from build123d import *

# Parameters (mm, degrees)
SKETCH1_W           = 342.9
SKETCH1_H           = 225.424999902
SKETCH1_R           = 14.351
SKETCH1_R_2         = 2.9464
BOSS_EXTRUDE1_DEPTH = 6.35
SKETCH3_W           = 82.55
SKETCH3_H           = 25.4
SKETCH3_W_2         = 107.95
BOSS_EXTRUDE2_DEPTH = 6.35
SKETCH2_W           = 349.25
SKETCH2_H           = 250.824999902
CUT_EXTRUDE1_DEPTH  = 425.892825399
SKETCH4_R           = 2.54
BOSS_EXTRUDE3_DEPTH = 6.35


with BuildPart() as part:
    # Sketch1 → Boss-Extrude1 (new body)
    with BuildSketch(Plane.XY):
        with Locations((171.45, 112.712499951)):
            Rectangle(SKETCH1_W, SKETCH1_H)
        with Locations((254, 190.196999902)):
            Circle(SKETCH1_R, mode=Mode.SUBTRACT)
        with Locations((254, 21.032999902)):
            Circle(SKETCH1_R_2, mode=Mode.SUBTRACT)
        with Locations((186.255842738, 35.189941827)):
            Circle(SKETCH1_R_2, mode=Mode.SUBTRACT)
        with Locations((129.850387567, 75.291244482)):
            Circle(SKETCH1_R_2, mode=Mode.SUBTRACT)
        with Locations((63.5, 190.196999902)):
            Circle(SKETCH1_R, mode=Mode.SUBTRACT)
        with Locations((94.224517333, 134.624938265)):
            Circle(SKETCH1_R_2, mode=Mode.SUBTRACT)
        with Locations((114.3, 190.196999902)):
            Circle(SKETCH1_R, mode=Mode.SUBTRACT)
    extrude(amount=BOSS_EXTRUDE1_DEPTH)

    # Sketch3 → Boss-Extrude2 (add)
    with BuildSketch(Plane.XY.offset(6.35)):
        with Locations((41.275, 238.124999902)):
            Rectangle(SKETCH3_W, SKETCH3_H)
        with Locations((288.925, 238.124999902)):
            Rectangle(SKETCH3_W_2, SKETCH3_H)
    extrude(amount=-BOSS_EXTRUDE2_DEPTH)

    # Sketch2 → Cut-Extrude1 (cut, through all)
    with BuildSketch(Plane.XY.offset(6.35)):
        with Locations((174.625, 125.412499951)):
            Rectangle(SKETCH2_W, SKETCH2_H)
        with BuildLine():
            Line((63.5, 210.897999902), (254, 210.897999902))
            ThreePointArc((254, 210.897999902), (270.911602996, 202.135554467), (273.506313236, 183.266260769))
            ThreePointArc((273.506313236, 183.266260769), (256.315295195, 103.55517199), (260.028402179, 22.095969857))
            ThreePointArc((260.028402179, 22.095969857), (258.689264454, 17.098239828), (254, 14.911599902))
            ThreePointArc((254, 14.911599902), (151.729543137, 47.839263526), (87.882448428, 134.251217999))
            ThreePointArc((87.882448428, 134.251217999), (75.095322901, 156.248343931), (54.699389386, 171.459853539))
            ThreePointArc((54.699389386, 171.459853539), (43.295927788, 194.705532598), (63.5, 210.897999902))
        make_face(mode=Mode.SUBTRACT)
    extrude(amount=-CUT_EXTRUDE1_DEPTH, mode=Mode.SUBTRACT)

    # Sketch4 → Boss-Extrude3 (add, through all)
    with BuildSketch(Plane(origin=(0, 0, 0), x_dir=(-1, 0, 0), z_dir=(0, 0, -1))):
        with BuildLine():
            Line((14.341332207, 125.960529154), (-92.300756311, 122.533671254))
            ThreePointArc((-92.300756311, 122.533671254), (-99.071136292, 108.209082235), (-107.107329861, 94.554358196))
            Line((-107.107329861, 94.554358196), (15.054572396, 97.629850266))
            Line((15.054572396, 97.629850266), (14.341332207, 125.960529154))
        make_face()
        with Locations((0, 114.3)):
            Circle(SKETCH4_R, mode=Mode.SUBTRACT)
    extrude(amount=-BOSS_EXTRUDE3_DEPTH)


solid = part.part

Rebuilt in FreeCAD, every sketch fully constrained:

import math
import FreeCAD as App
import Part
import Sketcher
Q = App.Units.Quantity

doc = App.newDocument("Part")
body = doc.addObject("PartDesign::Body", "Body")

# Sketch on XY plane
sketch1 = body.newObject("Sketcher::SketchObject", "Sketch")
sketch1.AttachmentSupport = (doc.getObject("XY_Plane"), [""])
sketch1.MapMode = "FlatFace"
sketch1.addGeometry(Part.LineSegment(App.Vector(0, 225.4, 0), App.Vector(0, 0, 0)), False)
sketch1.addGeometry(Part.LineSegment(App.Vector(0, 0, 0), App.Vector(342.9, 0, 0)), False)
sketch1.addGeometry(Part.LineSegment(App.Vector(342.9, 0, 0), App.Vector(342.9, 225.4, 0)), False)
sketch1.addGeometry(Part.LineSegment(App.Vector(342.9, 225.4, 0), App.Vector(0, 225.4, 0)), False)
sketch1.addGeometry(Part.Circle(App.Vector(129.9, 75.3, 0), App.Vector(0, 0, 1), 2.9), False)
sketch1.addGeometry(Part.Circle(App.Vector(186.3, 35.2, 0), App.Vector(0, 0, 1), 2.9), False)
sketch1.addGeometry(Part.Circle(App.Vector(254, 21, 0), App.Vector(0, 0, 1), 2.9), False)
sketch1.addGeometry(Part.Circle(App.Vector(94.2, 134.6, 0), App.Vector(0, 0, 1), 2.9), False)
sketch1.addGeometry(Part.Circle(App.Vector(63.5, 190.2, 0), App.Vector(0, 0, 1), 14.4), False)
sketch1.addGeometry(Part.Circle(App.Vector(114.3, 190.2, 0), App.Vector(0, 0, 1), 14.4), False)
sketch1.addGeometry(Part.Circle(App.Vector(254, 190.2, 0), App.Vector(0, 0, 1), 14.4), False)
sketch1.addConstraint(Sketcher.Constraint("Coincident", 0, 2, 1, 1))
sketch1.addConstraint(Sketcher.Constraint("Coincident", 1, 2, 2, 1))
sketch1.addConstraint(Sketcher.Constraint("Coincident", 2, 2, 3, 1))
sketch1.addConstraint(Sketcher.Constraint("Coincident", 3, 2, 0, 1))
sketch1.addConstraint(Sketcher.Constraint("Vertical", 0))
sketch1.addConstraint(Sketcher.Constraint("Horizontal", 1))
sketch1.addConstraint(Sketcher.Constraint("Vertical", 2))
sketch1.addConstraint(Sketcher.Constraint("Horizontal", 3))
sketch1.addConstraint(Sketcher.Constraint("Coincident", 0, 2, -1, 1))
sketch1.addConstraint(Sketcher.Constraint("Equal", 4, 5))
sketch1.addConstraint(Sketcher.Constraint("Equal", 5, 6))
sketch1.addConstraint(Sketcher.Constraint("Equal", 6, 7))
sketch1.addConstraint(Sketcher.Constraint("Equal", 8, 9))
sketch1.addConstraint(Sketcher.Constraint("Equal", 9, 10))
sketch1.addConstraint(Sketcher.Constraint("Horizontal", 8, 3, 9, 3))
sketch1.addConstraint(Sketcher.Constraint("Horizontal", 9, 3, 10, 3))
sketch1.addConstraint(Sketcher.Constraint("Vertical", 6, 3, 10, 3))
sketch1.addConstraint(Sketcher.Constraint("Diameter", 8, Q("1.13 in")))
sketch1.addConstraint(Sketcher.Constraint("Diameter", 4, Q("0.232 in")))
sketch1.addConstraint(Sketcher.Constraint("DistanceX", 1, 1, 1, 2, Q("13.5 in")))
sketch1.addConstraint(Sketcher.Constraint("DistanceX", -1, 1, 6, 3, Q("10 in")))
sketch1.addConstraint(Sketcher.Constraint("DistanceX", 8, 3, 9, 3, Q("2 in")))
sketch1.addConstraint(Sketcher.Constraint("DistanceX", 9, 3, 2, 2, Q("9 in")))
sketch1.addConstraint(Sketcher.Constraint("DistanceY", 0, 2, 0, 1, Q("8.875 in")))
sketch1.addConstraint(Sketcher.Constraint("DistanceY", 6, 3, 8, 3, Q("6.66 in")))
sketch1.addConstraint(Sketcher.Constraint("DistanceY", -1, 1, 6, 3, Q("21.033 mm")))
sketch1.addConstraint(Sketcher.Constraint("DistanceY", -1, 1, 5, 3, Q("35.189942 mm")))
sketch1.addConstraint(Sketcher.Constraint("DistanceY", -1, 1, 7, 3, Q("134.624938 mm")))
sketch1.addConstraint(Sketcher.Constraint("DistanceX", 7, 3, 4, 3, Q("35.62587 mm")))
sketch1.addConstraint(Sketcher.Constraint("DistanceX", -1, 1, 4, 3, Q("129.850388 mm")))
sketch1.addConstraint(Sketcher.Constraint("DistanceY", -1, 1, 4, 3, Q("75.291244 mm")))
sketch1.addConstraint(Sketcher.Constraint("DistanceX", -1, 1, 5, 3, Q("186.255843 mm")))
pad1 = body.newObject("PartDesign::Pad", "Pad")
pad1.Profile = sketch1
pad1.Length = Q("0.25 in")

# Sketch on XY plane
sketch2 = body.newObject("Sketcher::SketchObject", "Sketch001")
sketch2.AttachmentSupport = (doc.getObject("XY_Plane"), [""])
sketch2.MapMode = "FlatFace"
sketch2.AttachmentOffset = App.Placement(App.Vector(0, 0, 0.25 * 25.4), App.Rotation())
sketch2.addGeometry(Part.LineSegment(App.Vector(0, 251, 0), App.Vector(0, 225, 0)), False)
sketch2.addGeometry(Part.LineSegment(App.Vector(0, 225, 0), App.Vector(83, 225, 0)), False)
sketch2.addGeometry(Part.LineSegment(App.Vector(83, 225, 0), App.Vector(83, 251, 0)), False)
sketch2.addGeometry(Part.LineSegment(App.Vector(83, 251, 0), App.Vector(0, 251, 0)), False)
sketch2.addGeometry(Part.LineSegment(App.Vector(235, 251, 0), App.Vector(235, 225, 0)), False)
sketch2.addGeometry(Part.LineSegment(App.Vector(235, 225, 0), App.Vector(343, 225, 0)), False)
sketch2.addGeometry(Part.LineSegment(App.Vector(343, 225, 0), App.Vector(343, 251, 0)), False)
sketch2.addGeometry(Part.LineSegment(App.Vector(343, 251, 0), App.Vector(235, 251, 0)), False)
sketch2.addConstraint(Sketcher.Constraint("Coincident", 0, 2, 1, 1))
sketch2.addConstraint(Sketcher.Constraint("Coincident", 1, 2, 2, 1))
sketch2.addConstraint(Sketcher.Constraint("Coincident", 2, 2, 3, 1))
sketch2.addConstraint(Sketcher.Constraint("Coincident", 3, 2, 0, 1))
sketch2.addConstraint(Sketcher.Constraint("Coincident", 4, 2, 5, 1))
sketch2.addConstraint(Sketcher.Constraint("Coincident", 5, 2, 6, 1))
sketch2.addConstraint(Sketcher.Constraint("Coincident", 6, 2, 7, 1))
sketch2.addConstraint(Sketcher.Constraint("Coincident", 7, 2, 4, 1))
sketch2.addConstraint(Sketcher.Constraint("Vertical", 0))
sketch2.addConstraint(Sketcher.Constraint("Horizontal", 1))
sketch2.addConstraint(Sketcher.Constraint("Vertical", 2))
sketch2.addConstraint(Sketcher.Constraint("Horizontal", 3))
sketch2.addConstraint(Sketcher.Constraint("Vertical", 4))
sketch2.addConstraint(Sketcher.Constraint("Horizontal", 5))
sketch2.addConstraint(Sketcher.Constraint("Vertical", 6))
sketch2.addConstraint(Sketcher.Constraint("Horizontal", 7))
sketch2.addConstraint(Sketcher.Constraint("PointOnObject", 0, 2, -2))
sketch2.addConstraint(Sketcher.Constraint("Horizontal", 1, 2, 4, 2))
sketch2.addConstraint(Sketcher.Constraint("Horizontal", 3, 2, 6, 2))
sketch2.addConstraint(Sketcher.Constraint("DistanceY", 0, 2, 0, 1, Q("1 in")))
sketch2.addConstraint(Sketcher.Constraint("DistanceX", 1, 2, 4, 2, Q("6 in")))
sketch2.addConstraint(Sketcher.Constraint("DistanceX", 1, 1, 1, 2, Q("3.25 in")))
sketch2.addConstraint(Sketcher.Constraint("DistanceX", 5, 1, 5, 2, Q("4.25 in")))
sketch2.addConstraint(Sketcher.Constraint("DistanceY", -1, 1, 0, 2, Q("8.875 in")))
pad2 = body.newObject("PartDesign::Pad", "Pad001")
pad2.Profile = sketch2
pad2.Length = Q("0.25 in")
pad2.Reversed = True

# Sketch on XY plane
sketch3 = body.newObject("Sketcher::SketchObject", "Sketch002")
sketch3.AttachmentSupport = (doc.getObject("XY_Plane"), [""])
sketch3.MapMode = "FlatFace"
sketch3.AttachmentOffset = App.Placement(App.Vector(0, 0, 0.25 * 25.4), App.Rotation())
sketch3.addGeometry(Part.LineSegment(App.Vector(0, 251, 0), App.Vector(0, 0, 0)), False)
sketch3.addGeometry(Part.LineSegment(App.Vector(0, 0, 0), App.Vector(349, 0, 0)), False)
sketch3.addGeometry(Part.LineSegment(App.Vector(349, 0, 0), App.Vector(349, 251, 0)), False)
sketch3.addGeometry(Part.LineSegment(App.Vector(349, 251, 0), App.Vector(0, 251, 0)), False)
sketch3.addGeometry(Part.ArcOfCircle(Part.Circle(App.Vector(64, 190, 0), App.Vector(0, 0, 1), 21), math.radians(90), math.radians(245)), False)
sketch3.addGeometry(Part.LineSegment(App.Vector(64, 211, 0), App.Vector(254, 211, 0)), False)
sketch3.addGeometry(Part.ArcOfCircle(Part.Circle(App.Vector(254, 190, 0), App.Vector(0, 0, 1), 21), math.radians(-20), math.radians(90)), False)
sketch3.addGeometry(Part.ArcOfCircle(Part.Circle(App.Vector(572, 77, 0), App.Vector(0, 0, 1), 317), math.radians(160), math.radians(190)), False)
sketch3.addGeometry(Part.ArcOfCircle(Part.Circle(App.Vector(254, 21, 0), App.Vector(0, 0, 1), 6), math.radians(-90), math.radians(10)), False)
sketch3.addGeometry(Part.ArcOfCircle(Part.Circle(App.Vector(254, 190, 0), App.Vector(0, 0, 1), 175), math.radians(-161), math.radians(-90)), False)
sketch3.addGeometry(Part.ArcOfCircle(Part.Circle(App.Vector(28, 114, 0), App.Vector(0, 0, 1), 64), math.radians(19), math.radians(65)), False)
sketch3.addConstraint(Sketcher.Constraint("Coincident", 0, 2, 1, 1))
sketch3.addConstraint(Sketcher.Constraint("Coincident", 1, 2, 2, 1))
sketch3.addConstraint(Sketcher.Constraint("Coincident", 2, 2, 3, 1))
sketch3.addConstraint(Sketcher.Constraint("Coincident", 3, 2, 0, 1))
sketch3.addConstraint(Sketcher.Constraint("Tangent", 4, 1, 5, 1))
sketch3.addConstraint(Sketcher.Constraint("Tangent", 5, 2, 6, 2))
sketch3.addConstraint(Sketcher.Constraint("Tangent", 6, 1, 7, 1))
sketch3.addConstraint(Sketcher.Constraint("Tangent", 7, 2, 8, 2))
sketch3.addConstraint(Sketcher.Constraint("Tangent", 8, 1, 9, 2))
sketch3.addConstraint(Sketcher.Constraint("Tangent", 9, 1, 10, 1))
sketch3.addConstraint(Sketcher.Constraint("Tangent", 10, 2, 4, 2))
sketch3.addConstraint(Sketcher.Constraint("Vertical", 0))
sketch3.addConstraint(Sketcher.Constraint("Horizontal", 1))
sketch3.addConstraint(Sketcher.Constraint("Vertical", 2))
sketch3.addConstraint(Sketcher.Constraint("Horizontal", 3))
sketch3.addConstraint(Sketcher.Constraint("Horizontal", 5))
sketch3.addConstraint(Sketcher.Constraint("Coincident", 0, 2, -1, 1))
sketch3.addConstraint(Sketcher.Constraint("Coincident", 9, 3, 6, 3))
sketch3.addConstraint(Sketcher.Constraint("Equal", 4, 6))
sketch3.addConstraint(Sketcher.Constraint("Vertical", 6, 3, 8, 3))
sketch3.addConstraint(Sketcher.Constraint("Radius", 10, Q("2.5 in")))
sketch3.addConstraint(Sketcher.Constraint("DistanceX", 5, 1, 5, 2, Q("7.5 in")))
sketch3.addConstraint(Sketcher.Constraint("DistanceX", -1, 1, 6, 3, Q("10 in")))
sketch3.addConstraint(Sketcher.Constraint("Radius", 4, Q("0.815 in")))
sketch3.addConstraint(Sketcher.Constraint("Radius", 8, Q("0.241 in")))
sketch3.addConstraint(Sketcher.Constraint("Radius", 9, Q("6.901 in")))
sketch3.addConstraint(Sketcher.Constraint("DistanceX", 1, 1, 1, 2, Q("13.75 in")))
sketch3.addConstraint(Sketcher.Constraint("DistanceY", 0, 2, 0, 1, Q("9.875 in")))
sketch3.addConstraint(Sketcher.Constraint("Radius", 7, Q("316.983361 mm")))
sketch3.addConstraint(Sketcher.Constraint("DistanceY", -1, 1, 4, 3, Q("190.197 mm")))
pocket1 = body.newObject("PartDesign::Pocket", "Pocket")
pocket1.Profile = sketch3
pocket1.Type = "ThroughAll"

# Sketch on XY plane
sketch4 = body.newObject("Sketcher::SketchObject", "Sketch003")
sketch4.AttachmentSupport = (doc.getObject("XY_Plane"), [""])
sketch4.MapMode = "FlatFace"
sketch4.addGeometry(Part.LineSegment(App.Vector(-14.3, 126, 0), App.Vector(92.3, 122.5, 0)), False)
sketch4.addGeometry(Part.ArcOfCircle(Part.Circle(App.Vector(254, 190.2, 0), App.Vector(0, 0, 1), 175.3), math.radians(-157.29), math.radians(-146.93)), False)
sketch4.addGeometry(Part.LineSegment(App.Vector(107.1, 94.6, 0), App.Vector(-15.1, 97.6, 0)), False)
sketch4.addGeometry(Part.LineSegment(App.Vector(-15.1, 97.6, 0), App.Vector(-14.3, 126, 0)), False)
sketch4.addGeometry(Part.Circle(App.Vector(0, 114.3, 0), App.Vector(0, 0, 1), 2.5), False)
sketch4.addConstraint(Sketcher.Constraint("Coincident", 0, 2, 1, 1))
sketch4.addConstraint(Sketcher.Constraint("Coincident", 1, 2, 2, 1))
sketch4.addConstraint(Sketcher.Constraint("Coincident", 2, 2, 3, 1))
sketch4.addConstraint(Sketcher.Constraint("Coincident", 3, 2, 0, 1))
sketch4.addConstraint(Sketcher.Constraint("PointOnObject", 4, 3, -2))
sketch4.addConstraint(Sketcher.Constraint("Perpendicular", 2, 3))
sketch4.addConstraint(Sketcher.Constraint("Diameter", 4, Q("0.2 in")))
sketch4.addConstraint(Sketcher.Constraint("DistanceX", -1, 1, 1, 3, Q("10 in")))
sketch4.addConstraint(Sketcher.Constraint("Radius", 1, Q("6.901 in")))
sketch4.addConstraint(Sketcher.Constraint("DistanceY", -1, 1, 4, 3, Q("4.5 in")))
sketch4.addConstraint(Sketcher.Constraint("DistanceY", -1, 1, 1, 3, Q("190.197 mm")))
sketch4.addConstraint(Sketcher.Constraint("Distance", 2, Q("122.20061 mm")))
sketch4.addConstraint(Sketcher.Constraint("DistanceY", -1, 1, 0, 2, Q("122.533671 mm")))
sketch4.addConstraint(Sketcher.Constraint("DistanceX", -1, 1, 1, 2, Q("107.10733 mm")))
sketch4.addConstraint(Sketcher.Constraint("DistanceY", -1, 1, 2, 2, Q("97.62985 mm")))
sketch4.addConstraint(Sketcher.Constraint("DistanceY", -1, 1, 3, 2, Q("125.960529 mm")))
pad3 = body.newObject("PartDesign::Pad", "Pad002")
pad3.Profile = sketch4
pad3.Length = Q("0.25 in")

doc.recompute()
